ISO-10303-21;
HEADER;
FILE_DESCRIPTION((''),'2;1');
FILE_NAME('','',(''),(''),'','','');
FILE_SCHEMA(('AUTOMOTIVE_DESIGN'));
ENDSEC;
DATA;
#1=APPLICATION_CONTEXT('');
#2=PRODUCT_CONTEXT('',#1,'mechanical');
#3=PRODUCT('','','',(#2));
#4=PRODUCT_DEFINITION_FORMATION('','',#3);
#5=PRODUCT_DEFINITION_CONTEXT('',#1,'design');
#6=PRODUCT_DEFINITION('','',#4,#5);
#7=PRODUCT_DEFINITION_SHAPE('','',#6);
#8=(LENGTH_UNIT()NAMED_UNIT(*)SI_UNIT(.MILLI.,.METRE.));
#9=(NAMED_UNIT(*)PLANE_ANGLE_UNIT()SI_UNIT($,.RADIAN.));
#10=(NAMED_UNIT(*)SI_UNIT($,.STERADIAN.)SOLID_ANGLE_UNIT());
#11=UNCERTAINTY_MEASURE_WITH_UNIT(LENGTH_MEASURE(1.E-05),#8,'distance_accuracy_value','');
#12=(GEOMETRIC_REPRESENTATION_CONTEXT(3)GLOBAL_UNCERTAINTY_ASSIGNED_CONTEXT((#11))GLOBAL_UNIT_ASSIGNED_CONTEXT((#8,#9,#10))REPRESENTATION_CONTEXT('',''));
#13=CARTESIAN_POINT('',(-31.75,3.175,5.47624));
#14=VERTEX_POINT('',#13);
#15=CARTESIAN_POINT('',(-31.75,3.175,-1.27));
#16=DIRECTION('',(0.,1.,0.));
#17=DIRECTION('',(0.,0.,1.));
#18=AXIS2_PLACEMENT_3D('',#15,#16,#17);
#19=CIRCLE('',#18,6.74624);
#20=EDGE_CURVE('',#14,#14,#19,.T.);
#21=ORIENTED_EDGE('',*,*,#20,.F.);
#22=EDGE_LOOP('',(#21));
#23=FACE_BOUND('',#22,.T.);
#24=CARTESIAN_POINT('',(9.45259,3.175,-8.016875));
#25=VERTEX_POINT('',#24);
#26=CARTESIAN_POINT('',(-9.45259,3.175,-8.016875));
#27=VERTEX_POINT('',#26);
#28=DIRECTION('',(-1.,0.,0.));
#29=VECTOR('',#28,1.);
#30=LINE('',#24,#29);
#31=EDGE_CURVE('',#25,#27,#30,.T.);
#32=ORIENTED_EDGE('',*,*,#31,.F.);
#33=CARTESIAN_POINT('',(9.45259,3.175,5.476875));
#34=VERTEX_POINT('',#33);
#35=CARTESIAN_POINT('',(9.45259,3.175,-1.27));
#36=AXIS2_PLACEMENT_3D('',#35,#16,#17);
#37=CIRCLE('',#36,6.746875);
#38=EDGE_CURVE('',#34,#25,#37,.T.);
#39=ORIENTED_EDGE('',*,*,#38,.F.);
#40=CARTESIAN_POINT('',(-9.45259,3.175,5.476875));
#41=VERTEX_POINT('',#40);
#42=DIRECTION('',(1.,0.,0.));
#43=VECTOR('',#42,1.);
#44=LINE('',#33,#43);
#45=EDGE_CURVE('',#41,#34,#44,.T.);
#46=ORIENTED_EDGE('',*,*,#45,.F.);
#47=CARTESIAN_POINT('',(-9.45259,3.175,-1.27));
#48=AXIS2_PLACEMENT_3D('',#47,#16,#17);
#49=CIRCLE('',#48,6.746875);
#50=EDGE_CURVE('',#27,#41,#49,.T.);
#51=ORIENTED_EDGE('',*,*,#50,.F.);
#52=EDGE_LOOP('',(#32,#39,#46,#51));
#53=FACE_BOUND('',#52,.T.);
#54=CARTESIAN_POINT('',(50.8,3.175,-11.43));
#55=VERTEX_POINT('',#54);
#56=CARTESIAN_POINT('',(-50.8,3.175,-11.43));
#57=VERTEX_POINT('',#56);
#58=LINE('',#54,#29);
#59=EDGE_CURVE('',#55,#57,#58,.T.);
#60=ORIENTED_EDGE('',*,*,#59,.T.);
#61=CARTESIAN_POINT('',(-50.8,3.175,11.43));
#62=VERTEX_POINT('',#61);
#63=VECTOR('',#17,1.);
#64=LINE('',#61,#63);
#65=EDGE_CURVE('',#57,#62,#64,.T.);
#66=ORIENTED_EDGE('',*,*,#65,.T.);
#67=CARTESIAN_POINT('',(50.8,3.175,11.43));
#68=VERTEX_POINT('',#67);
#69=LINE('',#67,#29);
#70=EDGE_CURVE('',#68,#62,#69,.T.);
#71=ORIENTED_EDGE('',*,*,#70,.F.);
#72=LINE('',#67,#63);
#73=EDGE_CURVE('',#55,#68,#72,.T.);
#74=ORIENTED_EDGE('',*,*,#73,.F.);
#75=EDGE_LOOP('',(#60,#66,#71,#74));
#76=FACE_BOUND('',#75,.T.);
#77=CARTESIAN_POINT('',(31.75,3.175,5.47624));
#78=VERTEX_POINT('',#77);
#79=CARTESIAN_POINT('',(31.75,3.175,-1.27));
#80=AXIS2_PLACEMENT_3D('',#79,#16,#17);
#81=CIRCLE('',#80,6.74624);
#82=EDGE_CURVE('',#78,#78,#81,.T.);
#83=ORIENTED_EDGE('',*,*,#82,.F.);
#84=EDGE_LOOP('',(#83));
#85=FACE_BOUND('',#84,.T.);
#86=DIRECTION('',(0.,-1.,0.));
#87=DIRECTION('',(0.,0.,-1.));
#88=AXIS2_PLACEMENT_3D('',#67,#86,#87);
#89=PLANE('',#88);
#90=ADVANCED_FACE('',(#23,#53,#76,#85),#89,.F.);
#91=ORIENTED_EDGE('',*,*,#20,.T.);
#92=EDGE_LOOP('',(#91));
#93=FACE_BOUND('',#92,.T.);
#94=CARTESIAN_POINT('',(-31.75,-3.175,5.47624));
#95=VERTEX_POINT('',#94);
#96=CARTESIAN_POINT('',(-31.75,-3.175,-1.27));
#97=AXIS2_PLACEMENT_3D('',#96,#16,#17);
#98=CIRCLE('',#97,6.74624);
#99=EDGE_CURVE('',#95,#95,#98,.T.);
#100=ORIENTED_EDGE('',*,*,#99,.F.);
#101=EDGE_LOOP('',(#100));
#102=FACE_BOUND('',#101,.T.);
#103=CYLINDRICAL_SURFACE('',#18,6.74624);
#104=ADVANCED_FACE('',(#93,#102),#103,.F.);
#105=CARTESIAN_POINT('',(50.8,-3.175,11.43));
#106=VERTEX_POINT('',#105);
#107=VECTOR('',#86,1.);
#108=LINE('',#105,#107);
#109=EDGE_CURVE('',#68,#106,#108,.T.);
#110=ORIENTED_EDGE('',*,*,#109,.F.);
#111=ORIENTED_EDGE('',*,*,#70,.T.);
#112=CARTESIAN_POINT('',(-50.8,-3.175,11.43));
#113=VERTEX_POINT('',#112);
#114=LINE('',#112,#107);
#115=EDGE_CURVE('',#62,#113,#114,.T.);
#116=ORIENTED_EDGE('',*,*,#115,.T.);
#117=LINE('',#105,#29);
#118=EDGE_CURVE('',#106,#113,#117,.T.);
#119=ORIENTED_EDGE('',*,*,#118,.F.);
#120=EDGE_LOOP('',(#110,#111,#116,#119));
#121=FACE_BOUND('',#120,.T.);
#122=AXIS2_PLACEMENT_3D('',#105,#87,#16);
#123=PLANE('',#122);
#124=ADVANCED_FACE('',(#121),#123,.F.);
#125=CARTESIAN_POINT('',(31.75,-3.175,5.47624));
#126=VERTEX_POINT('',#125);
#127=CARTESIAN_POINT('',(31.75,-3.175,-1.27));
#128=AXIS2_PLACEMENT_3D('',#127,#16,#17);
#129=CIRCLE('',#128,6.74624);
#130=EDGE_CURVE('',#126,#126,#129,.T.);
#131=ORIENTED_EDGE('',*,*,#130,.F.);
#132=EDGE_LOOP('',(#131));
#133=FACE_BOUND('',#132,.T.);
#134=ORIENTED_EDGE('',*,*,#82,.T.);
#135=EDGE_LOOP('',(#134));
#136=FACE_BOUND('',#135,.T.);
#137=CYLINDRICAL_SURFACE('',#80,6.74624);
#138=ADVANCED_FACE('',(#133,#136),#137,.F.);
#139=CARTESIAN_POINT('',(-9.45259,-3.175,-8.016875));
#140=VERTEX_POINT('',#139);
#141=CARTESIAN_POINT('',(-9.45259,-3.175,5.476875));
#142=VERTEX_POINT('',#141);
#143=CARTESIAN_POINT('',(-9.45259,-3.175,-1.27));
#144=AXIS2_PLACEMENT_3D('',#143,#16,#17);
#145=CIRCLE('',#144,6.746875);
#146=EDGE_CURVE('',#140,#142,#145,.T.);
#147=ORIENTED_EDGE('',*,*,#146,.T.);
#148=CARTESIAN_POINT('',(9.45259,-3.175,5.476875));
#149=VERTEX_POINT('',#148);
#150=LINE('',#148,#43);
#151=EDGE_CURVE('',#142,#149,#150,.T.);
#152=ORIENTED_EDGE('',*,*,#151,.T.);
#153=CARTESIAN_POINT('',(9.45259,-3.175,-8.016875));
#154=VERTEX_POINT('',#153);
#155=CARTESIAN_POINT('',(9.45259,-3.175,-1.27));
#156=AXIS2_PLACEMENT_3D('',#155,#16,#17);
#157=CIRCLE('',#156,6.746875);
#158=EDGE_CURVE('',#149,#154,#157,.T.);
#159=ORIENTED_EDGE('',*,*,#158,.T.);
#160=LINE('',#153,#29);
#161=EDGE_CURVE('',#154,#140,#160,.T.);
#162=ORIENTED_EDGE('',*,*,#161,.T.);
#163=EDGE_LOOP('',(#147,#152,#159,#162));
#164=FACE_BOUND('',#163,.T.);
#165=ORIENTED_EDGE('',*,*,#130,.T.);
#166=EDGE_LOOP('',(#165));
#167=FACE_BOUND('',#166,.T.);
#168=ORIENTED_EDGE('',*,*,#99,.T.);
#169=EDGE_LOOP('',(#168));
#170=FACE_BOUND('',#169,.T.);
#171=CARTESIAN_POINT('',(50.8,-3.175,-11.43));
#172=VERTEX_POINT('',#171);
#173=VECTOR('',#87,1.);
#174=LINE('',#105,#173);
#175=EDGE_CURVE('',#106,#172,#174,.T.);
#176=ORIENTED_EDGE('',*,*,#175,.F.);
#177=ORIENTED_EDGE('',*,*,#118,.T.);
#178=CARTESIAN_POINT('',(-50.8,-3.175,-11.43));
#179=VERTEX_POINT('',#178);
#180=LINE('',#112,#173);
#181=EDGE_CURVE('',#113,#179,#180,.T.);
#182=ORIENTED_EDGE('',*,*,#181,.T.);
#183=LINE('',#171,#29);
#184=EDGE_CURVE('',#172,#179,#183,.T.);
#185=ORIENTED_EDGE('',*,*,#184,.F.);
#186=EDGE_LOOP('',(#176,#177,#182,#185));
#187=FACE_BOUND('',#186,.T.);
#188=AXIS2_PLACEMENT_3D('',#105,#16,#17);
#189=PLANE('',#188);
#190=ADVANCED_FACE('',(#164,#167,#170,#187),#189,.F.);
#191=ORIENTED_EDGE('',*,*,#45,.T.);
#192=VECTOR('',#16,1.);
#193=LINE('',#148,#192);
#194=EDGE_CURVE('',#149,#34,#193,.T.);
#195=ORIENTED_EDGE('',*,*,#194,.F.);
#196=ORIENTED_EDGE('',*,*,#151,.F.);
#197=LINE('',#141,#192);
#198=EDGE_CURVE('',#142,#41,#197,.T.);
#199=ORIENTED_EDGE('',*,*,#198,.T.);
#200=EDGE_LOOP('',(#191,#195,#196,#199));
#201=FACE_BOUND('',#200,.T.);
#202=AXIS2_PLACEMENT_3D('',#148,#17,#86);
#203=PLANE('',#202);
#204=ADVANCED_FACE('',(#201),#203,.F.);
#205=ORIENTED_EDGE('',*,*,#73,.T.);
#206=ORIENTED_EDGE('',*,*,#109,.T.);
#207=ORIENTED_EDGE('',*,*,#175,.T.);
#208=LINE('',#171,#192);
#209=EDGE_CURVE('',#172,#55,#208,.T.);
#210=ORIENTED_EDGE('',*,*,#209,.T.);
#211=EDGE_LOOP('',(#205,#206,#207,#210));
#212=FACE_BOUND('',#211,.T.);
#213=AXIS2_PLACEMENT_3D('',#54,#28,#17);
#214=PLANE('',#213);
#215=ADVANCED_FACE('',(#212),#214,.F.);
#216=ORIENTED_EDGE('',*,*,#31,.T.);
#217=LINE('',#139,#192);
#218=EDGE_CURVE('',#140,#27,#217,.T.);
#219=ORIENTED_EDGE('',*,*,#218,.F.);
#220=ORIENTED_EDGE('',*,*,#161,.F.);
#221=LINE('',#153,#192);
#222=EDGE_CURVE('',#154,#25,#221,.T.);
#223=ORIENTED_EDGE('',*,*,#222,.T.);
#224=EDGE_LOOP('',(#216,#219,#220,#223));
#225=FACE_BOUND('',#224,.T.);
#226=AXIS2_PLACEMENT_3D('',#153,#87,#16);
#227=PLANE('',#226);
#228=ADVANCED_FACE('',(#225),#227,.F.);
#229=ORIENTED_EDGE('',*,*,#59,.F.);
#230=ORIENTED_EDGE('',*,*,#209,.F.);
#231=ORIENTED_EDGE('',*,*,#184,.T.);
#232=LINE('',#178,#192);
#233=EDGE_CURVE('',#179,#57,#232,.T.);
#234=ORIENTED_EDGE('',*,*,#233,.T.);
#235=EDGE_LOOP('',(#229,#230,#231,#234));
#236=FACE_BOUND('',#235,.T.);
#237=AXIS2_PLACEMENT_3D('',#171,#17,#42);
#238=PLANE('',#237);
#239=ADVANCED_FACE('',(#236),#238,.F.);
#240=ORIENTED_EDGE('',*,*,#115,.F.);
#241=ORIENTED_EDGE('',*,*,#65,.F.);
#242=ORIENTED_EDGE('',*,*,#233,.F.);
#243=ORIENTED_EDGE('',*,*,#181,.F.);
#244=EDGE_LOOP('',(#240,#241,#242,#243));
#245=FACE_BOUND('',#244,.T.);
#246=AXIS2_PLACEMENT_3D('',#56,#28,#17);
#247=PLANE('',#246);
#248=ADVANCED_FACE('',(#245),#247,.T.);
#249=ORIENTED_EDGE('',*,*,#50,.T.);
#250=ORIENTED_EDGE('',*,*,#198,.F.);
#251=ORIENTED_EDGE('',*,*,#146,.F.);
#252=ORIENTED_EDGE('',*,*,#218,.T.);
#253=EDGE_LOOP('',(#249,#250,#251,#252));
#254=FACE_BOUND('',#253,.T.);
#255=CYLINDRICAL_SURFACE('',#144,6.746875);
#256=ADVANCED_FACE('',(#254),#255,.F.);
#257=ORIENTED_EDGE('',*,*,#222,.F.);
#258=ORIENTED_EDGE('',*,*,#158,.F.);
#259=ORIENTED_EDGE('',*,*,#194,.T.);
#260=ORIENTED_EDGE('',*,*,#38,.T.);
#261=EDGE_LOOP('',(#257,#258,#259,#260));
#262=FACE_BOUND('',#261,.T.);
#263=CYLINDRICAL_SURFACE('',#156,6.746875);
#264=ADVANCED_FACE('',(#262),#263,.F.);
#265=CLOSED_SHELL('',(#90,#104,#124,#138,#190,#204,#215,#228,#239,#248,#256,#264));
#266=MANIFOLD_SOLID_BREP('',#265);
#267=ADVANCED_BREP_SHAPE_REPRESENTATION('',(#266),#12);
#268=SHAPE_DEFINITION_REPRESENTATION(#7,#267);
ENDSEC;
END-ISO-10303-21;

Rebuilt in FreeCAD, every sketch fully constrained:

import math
import FreeCAD as App
import Part
import Sketcher

V = App.Vector
Q = App.Units.Quantity

doc = App.newDocument("Part")
body = doc.addObject("PartDesign::Body", "Body")

# Sketch on YZ plane
sketch1 = body.newObject("Sketcher::SketchObject", "Sketch")
sketch1.AttachmentSupport = (doc.getObject("YZ_Plane"), [""])
sketch1.MapMode = "FlatFace"
sketch1.addGeometry([
    Part.LineSegment(V(3, 11, 0), V(-3, 11, 0)),
    Part.LineSegment(V(-3, 11, 0), V(-3, -11, 0)),
    Part.LineSegment(V(-3, -11, 0), V(3, -11, 0)),
    Part.LineSegment(V(3, -11, 0), V(3, 11, 0)),
], False)
sketch1.addConstraint([
    Sketcher.Constraint("Coincident", 0, 2, 1, 1),
    Sketcher.Constraint("Coincident", 1, 2, 2, 1),
    Sketcher.Constraint("Coincident", 2, 2, 3, 1),
    Sketcher.Constraint("Coincident", 3, 2, 0, 1),
    Sketcher.Constraint("Horizontal", 0),
    Sketcher.Constraint("Vertical", 1),
    Sketcher.Constraint("Horizontal", 2),
    Sketcher.Constraint("Vertical", 3),
    Sketcher.Constraint("Symmetric", 0, 2, 2, 2, -1, 1),
    Sketcher.Constraint("DistanceY", 1, 2, 1, 1, Q("0.9 in")),
    Sketcher.Constraint("DistanceX", 0, 2, 0, 1, Q("0.25 in")),
])
pad1 = body.newObject("PartDesign::Pad", "Pad")
pad1.Profile = sketch1
pad1.Type = "TwoLengths"
pad1.Length = Q("2 in")
pad1.Length2 = Q("2 in")

# Sketch on XZ plane
sketch2 = body.newObject("Sketcher::SketchObject", "Sketch001")
sketch2.AttachmentSupport = (doc.getObject("XZ_Plane"), [""])
sketch2.MapMode = "FlatFace"
sketch2.AttachmentOffset = App.Placement(V(0, 0, -0.125 * 25.4), App.Rotation())
sketch2.addGeometry([
    Part.Circle(V(-32, -1, 0), V(0, 0, 1), 7),
    Part.Circle(V(32, -1, 0), V(0, 0, 1), 7),
], False)
sketch2.addConstraint([
    Sketcher.Constraint("Equal", 0, 1),
    Sketcher.Constraint("Symmetric", 0, 3, 1, 3, -2),
    Sketcher.Constraint("Diameter", 0, Q("0.5312 in")),
    Sketcher.Constraint("DistanceX", 0, 3, 1, 3, Q("2.5 in")),
    Sketcher.Constraint("DistanceY", 0, 3, -1, 1, Q("0.05 in")),
])
doc.recompute()
hole = body.newObject("PartDesign::Hole", "Hole")
hole.Profile = sketch2
hole.ThreadType = "None"
hole.Diameter = Q("0.5312 in")
hole.DepthType = "ThroughAll"
hole.Reversed = True

# Sketch on XZ plane
sketch3 = body.newObject("Sketcher::SketchObject", "Sketch002")
sketch3.AttachmentSupport = (doc.getObject("XZ_Plane"), [""])
sketch3.MapMode = "FlatFace"
sketch3.AttachmentOffset = App.Placement(V(0, 0, -0.125 * 25.4), App.Rotation())
sketch3.addGeometry([
    Part.LineSegment(V(9, -8, 0), V(-9, -8, 0)),
    Part.ArcOfCircle(Part.Circle(V(-9, -1, 0), V(0, 0, 1), 7), math.radians(90), math.radians(270)),
    Part.LineSegment(V(-9, 5, 0), V(9, 5, 0)),
    Part.ArcOfCircle(Part.Circle(V(9, -1, 0), V(0, 0, 1), 7), math.radians(-90), math.radians(90)),
], False)
sketch3.addConstraint([
    Sketcher.Constraint("Tangent", 0, 2, 1, 2),
    Sketcher.Constraint("Tangent", 1, 1, 2, 1),
    Sketcher.Constraint("Tangent", 2, 2, 3, 2),
    Sketcher.Constraint("Tangent", 3, 1, 0, 1),
    Sketcher.Constraint("Horizontal", 0),
    Sketcher.Constraint("Horizontal", 2),
    Sketcher.Constraint("Radius", 1, Q("0.265625 in")),
    Sketcher.Constraint("DistanceY", 1, 3, -1, 1, Q("0.05 in")),
    Sketcher.Constraint("DistanceX", 0, 2, 0, 1, 18.90518),
    Sketcher.Constraint("DistanceX", 1, 3, -1, 1, 9.45259),
])
pocket1 = body.newObject("PartDesign::Pocket", "Pocket")
pocket1.Profile = sketch3
pocket1.Type = "ThroughAll"
pocket1.Reversed = True

doc.recompute()
